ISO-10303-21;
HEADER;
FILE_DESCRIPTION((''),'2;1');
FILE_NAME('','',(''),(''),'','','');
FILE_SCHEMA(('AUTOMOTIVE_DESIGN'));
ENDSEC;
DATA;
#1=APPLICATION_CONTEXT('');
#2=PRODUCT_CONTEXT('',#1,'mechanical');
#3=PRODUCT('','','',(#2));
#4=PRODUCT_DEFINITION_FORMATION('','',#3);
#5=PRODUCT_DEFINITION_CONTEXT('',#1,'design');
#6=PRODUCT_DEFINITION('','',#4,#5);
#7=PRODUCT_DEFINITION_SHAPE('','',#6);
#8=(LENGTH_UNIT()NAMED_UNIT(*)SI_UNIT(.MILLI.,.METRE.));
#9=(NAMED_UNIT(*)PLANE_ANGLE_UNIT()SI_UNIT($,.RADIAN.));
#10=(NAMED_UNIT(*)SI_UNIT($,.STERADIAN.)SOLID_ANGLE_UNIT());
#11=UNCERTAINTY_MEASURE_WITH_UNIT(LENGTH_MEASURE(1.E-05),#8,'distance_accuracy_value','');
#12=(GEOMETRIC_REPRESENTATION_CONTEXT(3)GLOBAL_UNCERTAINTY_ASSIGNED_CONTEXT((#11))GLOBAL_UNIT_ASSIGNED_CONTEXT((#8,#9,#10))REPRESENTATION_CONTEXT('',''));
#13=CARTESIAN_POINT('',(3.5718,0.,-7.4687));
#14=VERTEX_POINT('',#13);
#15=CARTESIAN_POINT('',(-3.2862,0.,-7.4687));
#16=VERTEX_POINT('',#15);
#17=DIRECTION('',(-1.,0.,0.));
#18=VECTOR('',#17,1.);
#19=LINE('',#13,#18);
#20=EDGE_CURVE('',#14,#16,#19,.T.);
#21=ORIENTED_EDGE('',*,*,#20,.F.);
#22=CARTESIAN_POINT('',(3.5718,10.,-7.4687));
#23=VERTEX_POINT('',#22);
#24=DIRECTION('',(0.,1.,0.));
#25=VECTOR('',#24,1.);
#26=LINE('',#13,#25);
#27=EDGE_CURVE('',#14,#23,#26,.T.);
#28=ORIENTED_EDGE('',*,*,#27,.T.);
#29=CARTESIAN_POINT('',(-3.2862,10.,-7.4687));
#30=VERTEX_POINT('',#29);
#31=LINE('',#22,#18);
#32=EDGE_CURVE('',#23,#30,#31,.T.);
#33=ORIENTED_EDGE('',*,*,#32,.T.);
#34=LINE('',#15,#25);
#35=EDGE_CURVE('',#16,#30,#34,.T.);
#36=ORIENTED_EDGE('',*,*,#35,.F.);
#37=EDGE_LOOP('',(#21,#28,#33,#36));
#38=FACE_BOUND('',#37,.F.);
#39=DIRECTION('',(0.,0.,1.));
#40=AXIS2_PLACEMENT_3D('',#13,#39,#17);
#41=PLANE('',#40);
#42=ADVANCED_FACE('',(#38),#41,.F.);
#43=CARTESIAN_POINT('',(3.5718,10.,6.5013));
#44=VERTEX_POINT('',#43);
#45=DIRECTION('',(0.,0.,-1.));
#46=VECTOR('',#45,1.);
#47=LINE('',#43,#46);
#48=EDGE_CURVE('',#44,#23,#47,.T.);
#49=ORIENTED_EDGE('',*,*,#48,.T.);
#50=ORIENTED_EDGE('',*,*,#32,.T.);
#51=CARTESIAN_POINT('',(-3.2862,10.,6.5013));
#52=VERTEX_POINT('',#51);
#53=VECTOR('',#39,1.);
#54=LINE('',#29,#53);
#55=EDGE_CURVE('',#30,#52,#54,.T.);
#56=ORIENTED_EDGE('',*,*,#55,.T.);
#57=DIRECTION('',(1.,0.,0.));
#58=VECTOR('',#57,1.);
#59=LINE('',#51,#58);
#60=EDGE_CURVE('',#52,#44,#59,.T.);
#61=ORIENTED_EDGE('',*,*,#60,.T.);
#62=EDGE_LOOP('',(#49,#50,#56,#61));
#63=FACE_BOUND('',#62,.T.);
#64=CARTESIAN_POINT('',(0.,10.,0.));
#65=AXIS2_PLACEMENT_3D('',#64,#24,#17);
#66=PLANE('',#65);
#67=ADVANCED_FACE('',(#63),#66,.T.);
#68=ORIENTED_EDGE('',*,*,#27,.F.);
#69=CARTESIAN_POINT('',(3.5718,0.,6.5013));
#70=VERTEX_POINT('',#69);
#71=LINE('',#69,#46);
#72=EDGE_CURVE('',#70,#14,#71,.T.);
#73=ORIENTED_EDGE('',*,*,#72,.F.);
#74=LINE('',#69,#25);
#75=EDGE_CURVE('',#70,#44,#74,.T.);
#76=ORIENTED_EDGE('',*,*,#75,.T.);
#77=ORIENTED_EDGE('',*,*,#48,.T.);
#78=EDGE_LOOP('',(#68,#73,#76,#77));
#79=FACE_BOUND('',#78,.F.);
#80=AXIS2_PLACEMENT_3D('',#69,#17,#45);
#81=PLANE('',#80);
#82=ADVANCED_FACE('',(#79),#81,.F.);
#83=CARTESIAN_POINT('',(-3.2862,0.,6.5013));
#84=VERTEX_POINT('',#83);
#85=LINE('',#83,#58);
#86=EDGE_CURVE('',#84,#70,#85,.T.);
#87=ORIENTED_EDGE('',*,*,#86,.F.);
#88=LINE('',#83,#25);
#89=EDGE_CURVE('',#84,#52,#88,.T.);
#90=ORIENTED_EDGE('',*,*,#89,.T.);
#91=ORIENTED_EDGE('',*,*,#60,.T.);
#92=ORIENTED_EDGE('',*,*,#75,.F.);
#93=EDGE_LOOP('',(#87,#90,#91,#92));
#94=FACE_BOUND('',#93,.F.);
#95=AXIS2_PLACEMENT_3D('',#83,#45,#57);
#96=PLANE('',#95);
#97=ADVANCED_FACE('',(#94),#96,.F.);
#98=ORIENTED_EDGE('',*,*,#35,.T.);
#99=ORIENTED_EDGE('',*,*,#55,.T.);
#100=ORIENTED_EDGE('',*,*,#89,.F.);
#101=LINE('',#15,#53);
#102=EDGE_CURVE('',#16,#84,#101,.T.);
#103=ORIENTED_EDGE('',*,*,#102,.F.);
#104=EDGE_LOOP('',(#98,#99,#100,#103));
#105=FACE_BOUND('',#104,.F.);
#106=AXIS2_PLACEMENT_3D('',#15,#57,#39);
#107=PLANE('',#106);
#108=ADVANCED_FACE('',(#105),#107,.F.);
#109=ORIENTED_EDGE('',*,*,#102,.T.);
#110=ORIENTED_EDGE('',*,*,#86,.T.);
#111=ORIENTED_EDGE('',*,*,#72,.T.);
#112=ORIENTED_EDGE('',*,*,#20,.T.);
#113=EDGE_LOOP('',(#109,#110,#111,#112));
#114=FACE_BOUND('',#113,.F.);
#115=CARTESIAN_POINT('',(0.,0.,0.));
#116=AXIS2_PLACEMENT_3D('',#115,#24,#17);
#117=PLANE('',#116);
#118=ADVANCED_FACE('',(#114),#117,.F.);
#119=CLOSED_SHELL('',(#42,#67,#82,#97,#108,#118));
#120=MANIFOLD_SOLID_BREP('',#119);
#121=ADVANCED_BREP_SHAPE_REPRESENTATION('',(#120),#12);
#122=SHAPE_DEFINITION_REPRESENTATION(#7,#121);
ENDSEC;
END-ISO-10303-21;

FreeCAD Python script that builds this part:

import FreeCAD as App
import Part
import Sketcher

V = App.Vector
Q = App.Units.Quantity


def add_polygon(sketch, points):
    """Adds a closed chain of lines whose ends are joined by coincident constraints."""
    first, n = sketch.GeometryCount, len(points)
    for a, b in zip(points, points[1:] + points[:1]):
        sketch.addGeometry(Part.LineSegment(App.Vector(*a, 0), App.Vector(*b, 0)), False)
    for i in range(n):
        sketch.addConstraint(Sketcher.Constraint("Coincident", first + i, 2, first + (i + 1) % n, 1))

doc = App.newDocument("Part")
body = doc.addObject("PartDesign::Body", "Body")

# Sketch on XZ plane
sketch1 = body.newObject("Sketcher::SketchObject", "Sketch")
sketch1.AttachmentSupport = (doc.getObject("XZ_Plane"), [""])
sketch1.MapMode = "FlatFace"
add_polygon(sketch1, [(-3, -7), (-3, 7), (4, 7), (4, -7)])  # lines 0-3
sketch1.addConstraint(Sketcher.Constraint("Vertical", 0))
sketch1.addConstraint(Sketcher.Constraint("Horizontal", 1))
sketch1.addConstraint(Sketcher.Constraint("Vertical", 2))
sketch1.addConstraint(Sketcher.Constraint("Horizontal", 3))
sketch1.addConstraint(Sketcher.Constraint("DistanceX", 1, 1, 1, 2, Q("0.27 in")))
sketch1.addConstraint(Sketcher.Constraint("DistanceY", 0, 1, 0, 2, Q("0.55 in")))
sketch1.addConstraint(Sketcher.Constraint("DistanceX", -1, 1, 1, 2, Q("0.140622 in")))
sketch1.addConstraint(Sketcher.Constraint("DistanceY", -1, 1, 0, 2, 6.5013))
pad1 = body.newObject("PartDesign::Pad", "Pad")
pad1.Profile = sketch1
pad1.Length = Q("0.3937008 in")
pad1.Reversed = True

doc.recompute()
